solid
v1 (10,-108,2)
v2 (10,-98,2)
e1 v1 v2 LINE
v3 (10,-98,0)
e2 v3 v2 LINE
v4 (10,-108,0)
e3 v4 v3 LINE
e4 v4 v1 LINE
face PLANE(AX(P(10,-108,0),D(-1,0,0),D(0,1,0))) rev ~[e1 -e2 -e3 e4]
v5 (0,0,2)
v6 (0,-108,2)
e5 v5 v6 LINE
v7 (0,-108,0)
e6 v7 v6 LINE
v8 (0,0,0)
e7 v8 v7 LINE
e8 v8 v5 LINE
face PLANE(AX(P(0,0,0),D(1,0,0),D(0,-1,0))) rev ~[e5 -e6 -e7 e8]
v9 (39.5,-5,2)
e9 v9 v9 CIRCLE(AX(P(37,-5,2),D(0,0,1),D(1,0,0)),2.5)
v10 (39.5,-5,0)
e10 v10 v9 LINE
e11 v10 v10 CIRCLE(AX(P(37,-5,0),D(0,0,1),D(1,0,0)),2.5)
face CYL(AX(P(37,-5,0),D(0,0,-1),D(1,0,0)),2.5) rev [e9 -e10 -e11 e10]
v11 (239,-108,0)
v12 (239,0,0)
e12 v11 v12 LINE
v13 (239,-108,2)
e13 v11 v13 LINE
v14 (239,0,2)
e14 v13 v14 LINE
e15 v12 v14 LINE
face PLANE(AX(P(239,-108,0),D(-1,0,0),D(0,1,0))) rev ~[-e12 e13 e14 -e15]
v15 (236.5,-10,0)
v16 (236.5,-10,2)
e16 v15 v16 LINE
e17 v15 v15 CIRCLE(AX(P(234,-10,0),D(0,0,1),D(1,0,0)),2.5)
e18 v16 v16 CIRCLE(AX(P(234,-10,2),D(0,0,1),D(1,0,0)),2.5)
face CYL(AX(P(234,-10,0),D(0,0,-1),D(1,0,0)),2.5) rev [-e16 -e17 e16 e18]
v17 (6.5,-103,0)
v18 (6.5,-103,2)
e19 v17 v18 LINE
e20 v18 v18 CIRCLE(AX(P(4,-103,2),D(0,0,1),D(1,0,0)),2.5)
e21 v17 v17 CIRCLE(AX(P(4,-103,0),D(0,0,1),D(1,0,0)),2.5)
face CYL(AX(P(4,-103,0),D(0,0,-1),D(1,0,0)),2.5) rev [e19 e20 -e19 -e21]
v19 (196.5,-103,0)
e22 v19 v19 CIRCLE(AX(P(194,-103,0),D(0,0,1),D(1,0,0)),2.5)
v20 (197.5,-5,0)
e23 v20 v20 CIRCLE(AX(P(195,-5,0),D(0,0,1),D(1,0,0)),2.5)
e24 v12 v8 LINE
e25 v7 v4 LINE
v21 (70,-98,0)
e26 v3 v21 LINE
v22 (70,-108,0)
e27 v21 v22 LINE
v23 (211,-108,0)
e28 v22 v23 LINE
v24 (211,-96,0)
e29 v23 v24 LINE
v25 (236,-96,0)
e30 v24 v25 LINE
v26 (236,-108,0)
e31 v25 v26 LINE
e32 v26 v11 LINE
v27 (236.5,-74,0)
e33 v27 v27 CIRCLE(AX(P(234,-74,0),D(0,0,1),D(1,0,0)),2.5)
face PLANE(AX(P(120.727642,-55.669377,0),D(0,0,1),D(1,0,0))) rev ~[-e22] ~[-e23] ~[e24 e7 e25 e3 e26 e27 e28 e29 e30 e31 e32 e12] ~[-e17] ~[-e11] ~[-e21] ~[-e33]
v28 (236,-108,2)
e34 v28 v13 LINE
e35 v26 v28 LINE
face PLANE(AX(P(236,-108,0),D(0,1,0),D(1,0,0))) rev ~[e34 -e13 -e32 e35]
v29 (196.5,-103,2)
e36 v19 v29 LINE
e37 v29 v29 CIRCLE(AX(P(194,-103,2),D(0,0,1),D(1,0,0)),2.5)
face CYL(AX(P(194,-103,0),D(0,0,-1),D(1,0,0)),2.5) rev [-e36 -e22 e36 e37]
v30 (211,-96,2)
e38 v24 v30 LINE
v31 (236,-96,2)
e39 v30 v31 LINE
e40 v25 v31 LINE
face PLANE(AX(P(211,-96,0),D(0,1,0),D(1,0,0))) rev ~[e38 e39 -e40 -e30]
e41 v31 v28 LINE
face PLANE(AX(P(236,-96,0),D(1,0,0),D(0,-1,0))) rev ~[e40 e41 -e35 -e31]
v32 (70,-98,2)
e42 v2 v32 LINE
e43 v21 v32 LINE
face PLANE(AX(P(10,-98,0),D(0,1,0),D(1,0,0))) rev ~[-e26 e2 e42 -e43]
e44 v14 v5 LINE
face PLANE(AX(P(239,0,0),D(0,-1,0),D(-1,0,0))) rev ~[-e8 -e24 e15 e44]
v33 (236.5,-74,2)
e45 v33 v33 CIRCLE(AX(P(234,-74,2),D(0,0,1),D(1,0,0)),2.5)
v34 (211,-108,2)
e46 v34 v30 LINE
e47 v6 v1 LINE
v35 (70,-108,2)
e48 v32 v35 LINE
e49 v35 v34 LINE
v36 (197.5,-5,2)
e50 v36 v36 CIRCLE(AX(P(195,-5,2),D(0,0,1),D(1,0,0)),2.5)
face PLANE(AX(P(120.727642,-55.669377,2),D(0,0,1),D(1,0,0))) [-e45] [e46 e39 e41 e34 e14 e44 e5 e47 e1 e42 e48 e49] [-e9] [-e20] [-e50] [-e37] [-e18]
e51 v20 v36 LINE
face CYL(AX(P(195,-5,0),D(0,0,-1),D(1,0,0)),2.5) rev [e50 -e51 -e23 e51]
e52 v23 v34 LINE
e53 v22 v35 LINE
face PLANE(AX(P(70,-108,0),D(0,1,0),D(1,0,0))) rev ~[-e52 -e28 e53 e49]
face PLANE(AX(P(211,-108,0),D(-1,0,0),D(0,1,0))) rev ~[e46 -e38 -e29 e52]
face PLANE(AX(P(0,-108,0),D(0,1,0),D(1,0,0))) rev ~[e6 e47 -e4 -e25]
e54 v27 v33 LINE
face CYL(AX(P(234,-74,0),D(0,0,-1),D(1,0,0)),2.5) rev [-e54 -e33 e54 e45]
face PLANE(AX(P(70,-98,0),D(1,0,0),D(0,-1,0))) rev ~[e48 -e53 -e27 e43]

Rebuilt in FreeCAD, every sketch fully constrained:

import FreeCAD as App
import Part
import Sketcher

V = App.Vector


def add_polygon(sketch, points):
    """Adds a closed chain of lines whose ends are joined by coincident constraints."""
    first, n = sketch.GeometryCount, len(points)
    for a, b in zip(points, points[1:] + points[:1]):
        sketch.addGeometry(Part.LineSegment(App.Vector(*a, 0), App.Vector(*b, 0)), False)
    for i in range(n):
        sketch.addConstraint(Sketcher.Constraint("Coincident", first + i, 2, first + (i + 1) % n, 1))

doc = App.newDocument("Part")
params = doc.addObject("Spreadsheet::Sheet", "Params")
for row, (alias, value) in enumerate([
    ("sketch1_diameter", "5 mm"),
    ("sketch1_width", "239 mm"),
    ("sketch1_width2", "10 mm"),
    ("sketch1_width3", "60 mm"),
    ("sketch1_width4", "141 mm"),
    ("pad1_length", "2 mm"),
], start=1):
    params.set(f"A{row}", alias)
    params.set(f"B{row}", "=" + value)
    params.setAlias(f"B{row}", alias)

body = doc.addObject("PartDesign::Body", "Body")

# Sketch on XY plane
sketch1 = doc.addObject("Sketcher::SketchObject", "Sketch")
body.addObject(sketch1)
sketch1.AttachmentSupport = (doc.XY_Plane, [""])
sketch1.MapMode = "FlatFace"
add_polygon(sketch1, [(239, 0), (0, 0), (0, -108), (10, -108), (10, -98), (70, -98), (70, -108), (211, -108), (211, -96), (236, -96), (236, -108), (239, -108)])  # lines 0-11
sketch1.addGeometry(Part.Circle(V(4, -103, 0), V(0, 0, 1), 2.5), False)  # 12
sketch1.addGeometry(Part.Circle(V(194, -103, 0), V(0, 0, 1), 2.5), False)  # 13
sketch1.addGeometry(Part.Circle(V(234, -74, 0), V(0, 0, 1), 2.5), False)  # 14
sketch1.addGeometry(Part.Circle(V(37, -5, 0), V(0, 0, 1), 2.5), False)  # 15
sketch1.addGeometry(Part.Circle(V(195, -5, 0), V(0, 0, 1), 2.5), False)  # 16
sketch1.addGeometry(Part.Circle(V(234, -10, 0), V(0, 0, 1), 2.5), False)  # 17
sketch1.addConstraint([
    Sketcher.Constraint("Horizontal", 0),
    Sketcher.Constraint("Vertical", 1),
    Sketcher.Constraint("Horizontal", 2),
    Sketcher.Constraint("Vertical", 3),
    Sketcher.Constraint("Horizontal", 4),
    Sketcher.Constraint("Vertical", 5),
    Sketcher.Constraint("Horizontal", 6),
    Sketcher.Constraint("Vertical", 7),
    Sketcher.Constraint("Horizontal", 8),
    Sketcher.Constraint("Vertical", 9),
    Sketcher.Constraint("Horizontal", 10),
    Sketcher.Constraint("Vertical", 11),
    Sketcher.Constraint("Coincident", 0, 2, -1, 1),
    Sketcher.Constraint("Equal", 12, 13),
    Sketcher.Constraint("Equal", 13, 14),
    Sketcher.Constraint("Equal", 14, 15),
    Sketcher.Constraint("Equal", 15, 16),
    Sketcher.Constraint("Equal", 16, 17),
    Sketcher.Constraint("Horizontal", 12, 3, 13, 3),
    Sketcher.Constraint("Horizontal", 15, 3, 16, 3),
    Sketcher.Constraint("Horizontal", 2, 2, 5, 2),
    Sketcher.Constraint("Horizontal", 6, 2, 9, 2),
    Sketcher.Constraint("Vertical", 14, 3, 17, 3),
    Sketcher.Constraint("Equal", 2, 3),
    Sketcher.Constraint("Diameter", 12, 5.0),
    Sketcher.Constraint("DistanceX", 0, 2, 0, 1, 239.0),
    Sketcher.Constraint("DistanceX", 2, 1, 2, 2, 10.0),
    Sketcher.Constraint("DistanceX", 4, 1, 4, 2, 60.0),
    Sketcher.Constraint("DistanceX", 6, 1, 6, 2, 141.0),
    Sketcher.Constraint("DistanceX", 8, 1, 8, 2, 25.0),
    Sketcher.Constraint("DistanceY", 1, 2, 1, 1, 108.0),
    Sketcher.Constraint("DistanceY", 7, 1, 7, 2, 12.0),
    Sketcher.Constraint("DistanceX", -1, 1, 12, 3, 4.0),
    Sketcher.Constraint("DistanceY", 12, 3, -1, 1, 103.0),
    Sketcher.Constraint("DistanceX", -1, 1, 13, 3, 194.0),
    Sketcher.Constraint("DistanceX", -1, 1, 14, 3, 234.0),
    Sketcher.Constraint("DistanceY", 14, 3, -1, 1, 74.0),
    Sketcher.Constraint("DistanceX", -1, 1, 15, 3, 37.0),
    Sketcher.Constraint("DistanceY", 15, 3, -1, 1, 5.0),
    Sketcher.Constraint("DistanceX", -1, 1, 16, 3, 195.0),
    Sketcher.Constraint("DistanceY", 17, 3, -1, 1, 10.0),
])
sketch1.setExpression("Constraints[36]", "Params.sketch1_diameter")
sketch1.setExpression("Constraints[37]", "Params.sketch1_width")
sketch1.setExpression("Constraints[38]", "Params.sketch1_width2")
sketch1.setExpression("Constraints[39]", "Params.sketch1_width3")
sketch1.setExpression("Constraints[40]", "Params.sketch1_width4")
pad1 = doc.addObject("PartDesign::Pad", "Pad")
body.addObject(pad1)
pad1.Profile = sketch1
pad1.setExpression("Length", "Params.pad1_length")

doc.recompute()
